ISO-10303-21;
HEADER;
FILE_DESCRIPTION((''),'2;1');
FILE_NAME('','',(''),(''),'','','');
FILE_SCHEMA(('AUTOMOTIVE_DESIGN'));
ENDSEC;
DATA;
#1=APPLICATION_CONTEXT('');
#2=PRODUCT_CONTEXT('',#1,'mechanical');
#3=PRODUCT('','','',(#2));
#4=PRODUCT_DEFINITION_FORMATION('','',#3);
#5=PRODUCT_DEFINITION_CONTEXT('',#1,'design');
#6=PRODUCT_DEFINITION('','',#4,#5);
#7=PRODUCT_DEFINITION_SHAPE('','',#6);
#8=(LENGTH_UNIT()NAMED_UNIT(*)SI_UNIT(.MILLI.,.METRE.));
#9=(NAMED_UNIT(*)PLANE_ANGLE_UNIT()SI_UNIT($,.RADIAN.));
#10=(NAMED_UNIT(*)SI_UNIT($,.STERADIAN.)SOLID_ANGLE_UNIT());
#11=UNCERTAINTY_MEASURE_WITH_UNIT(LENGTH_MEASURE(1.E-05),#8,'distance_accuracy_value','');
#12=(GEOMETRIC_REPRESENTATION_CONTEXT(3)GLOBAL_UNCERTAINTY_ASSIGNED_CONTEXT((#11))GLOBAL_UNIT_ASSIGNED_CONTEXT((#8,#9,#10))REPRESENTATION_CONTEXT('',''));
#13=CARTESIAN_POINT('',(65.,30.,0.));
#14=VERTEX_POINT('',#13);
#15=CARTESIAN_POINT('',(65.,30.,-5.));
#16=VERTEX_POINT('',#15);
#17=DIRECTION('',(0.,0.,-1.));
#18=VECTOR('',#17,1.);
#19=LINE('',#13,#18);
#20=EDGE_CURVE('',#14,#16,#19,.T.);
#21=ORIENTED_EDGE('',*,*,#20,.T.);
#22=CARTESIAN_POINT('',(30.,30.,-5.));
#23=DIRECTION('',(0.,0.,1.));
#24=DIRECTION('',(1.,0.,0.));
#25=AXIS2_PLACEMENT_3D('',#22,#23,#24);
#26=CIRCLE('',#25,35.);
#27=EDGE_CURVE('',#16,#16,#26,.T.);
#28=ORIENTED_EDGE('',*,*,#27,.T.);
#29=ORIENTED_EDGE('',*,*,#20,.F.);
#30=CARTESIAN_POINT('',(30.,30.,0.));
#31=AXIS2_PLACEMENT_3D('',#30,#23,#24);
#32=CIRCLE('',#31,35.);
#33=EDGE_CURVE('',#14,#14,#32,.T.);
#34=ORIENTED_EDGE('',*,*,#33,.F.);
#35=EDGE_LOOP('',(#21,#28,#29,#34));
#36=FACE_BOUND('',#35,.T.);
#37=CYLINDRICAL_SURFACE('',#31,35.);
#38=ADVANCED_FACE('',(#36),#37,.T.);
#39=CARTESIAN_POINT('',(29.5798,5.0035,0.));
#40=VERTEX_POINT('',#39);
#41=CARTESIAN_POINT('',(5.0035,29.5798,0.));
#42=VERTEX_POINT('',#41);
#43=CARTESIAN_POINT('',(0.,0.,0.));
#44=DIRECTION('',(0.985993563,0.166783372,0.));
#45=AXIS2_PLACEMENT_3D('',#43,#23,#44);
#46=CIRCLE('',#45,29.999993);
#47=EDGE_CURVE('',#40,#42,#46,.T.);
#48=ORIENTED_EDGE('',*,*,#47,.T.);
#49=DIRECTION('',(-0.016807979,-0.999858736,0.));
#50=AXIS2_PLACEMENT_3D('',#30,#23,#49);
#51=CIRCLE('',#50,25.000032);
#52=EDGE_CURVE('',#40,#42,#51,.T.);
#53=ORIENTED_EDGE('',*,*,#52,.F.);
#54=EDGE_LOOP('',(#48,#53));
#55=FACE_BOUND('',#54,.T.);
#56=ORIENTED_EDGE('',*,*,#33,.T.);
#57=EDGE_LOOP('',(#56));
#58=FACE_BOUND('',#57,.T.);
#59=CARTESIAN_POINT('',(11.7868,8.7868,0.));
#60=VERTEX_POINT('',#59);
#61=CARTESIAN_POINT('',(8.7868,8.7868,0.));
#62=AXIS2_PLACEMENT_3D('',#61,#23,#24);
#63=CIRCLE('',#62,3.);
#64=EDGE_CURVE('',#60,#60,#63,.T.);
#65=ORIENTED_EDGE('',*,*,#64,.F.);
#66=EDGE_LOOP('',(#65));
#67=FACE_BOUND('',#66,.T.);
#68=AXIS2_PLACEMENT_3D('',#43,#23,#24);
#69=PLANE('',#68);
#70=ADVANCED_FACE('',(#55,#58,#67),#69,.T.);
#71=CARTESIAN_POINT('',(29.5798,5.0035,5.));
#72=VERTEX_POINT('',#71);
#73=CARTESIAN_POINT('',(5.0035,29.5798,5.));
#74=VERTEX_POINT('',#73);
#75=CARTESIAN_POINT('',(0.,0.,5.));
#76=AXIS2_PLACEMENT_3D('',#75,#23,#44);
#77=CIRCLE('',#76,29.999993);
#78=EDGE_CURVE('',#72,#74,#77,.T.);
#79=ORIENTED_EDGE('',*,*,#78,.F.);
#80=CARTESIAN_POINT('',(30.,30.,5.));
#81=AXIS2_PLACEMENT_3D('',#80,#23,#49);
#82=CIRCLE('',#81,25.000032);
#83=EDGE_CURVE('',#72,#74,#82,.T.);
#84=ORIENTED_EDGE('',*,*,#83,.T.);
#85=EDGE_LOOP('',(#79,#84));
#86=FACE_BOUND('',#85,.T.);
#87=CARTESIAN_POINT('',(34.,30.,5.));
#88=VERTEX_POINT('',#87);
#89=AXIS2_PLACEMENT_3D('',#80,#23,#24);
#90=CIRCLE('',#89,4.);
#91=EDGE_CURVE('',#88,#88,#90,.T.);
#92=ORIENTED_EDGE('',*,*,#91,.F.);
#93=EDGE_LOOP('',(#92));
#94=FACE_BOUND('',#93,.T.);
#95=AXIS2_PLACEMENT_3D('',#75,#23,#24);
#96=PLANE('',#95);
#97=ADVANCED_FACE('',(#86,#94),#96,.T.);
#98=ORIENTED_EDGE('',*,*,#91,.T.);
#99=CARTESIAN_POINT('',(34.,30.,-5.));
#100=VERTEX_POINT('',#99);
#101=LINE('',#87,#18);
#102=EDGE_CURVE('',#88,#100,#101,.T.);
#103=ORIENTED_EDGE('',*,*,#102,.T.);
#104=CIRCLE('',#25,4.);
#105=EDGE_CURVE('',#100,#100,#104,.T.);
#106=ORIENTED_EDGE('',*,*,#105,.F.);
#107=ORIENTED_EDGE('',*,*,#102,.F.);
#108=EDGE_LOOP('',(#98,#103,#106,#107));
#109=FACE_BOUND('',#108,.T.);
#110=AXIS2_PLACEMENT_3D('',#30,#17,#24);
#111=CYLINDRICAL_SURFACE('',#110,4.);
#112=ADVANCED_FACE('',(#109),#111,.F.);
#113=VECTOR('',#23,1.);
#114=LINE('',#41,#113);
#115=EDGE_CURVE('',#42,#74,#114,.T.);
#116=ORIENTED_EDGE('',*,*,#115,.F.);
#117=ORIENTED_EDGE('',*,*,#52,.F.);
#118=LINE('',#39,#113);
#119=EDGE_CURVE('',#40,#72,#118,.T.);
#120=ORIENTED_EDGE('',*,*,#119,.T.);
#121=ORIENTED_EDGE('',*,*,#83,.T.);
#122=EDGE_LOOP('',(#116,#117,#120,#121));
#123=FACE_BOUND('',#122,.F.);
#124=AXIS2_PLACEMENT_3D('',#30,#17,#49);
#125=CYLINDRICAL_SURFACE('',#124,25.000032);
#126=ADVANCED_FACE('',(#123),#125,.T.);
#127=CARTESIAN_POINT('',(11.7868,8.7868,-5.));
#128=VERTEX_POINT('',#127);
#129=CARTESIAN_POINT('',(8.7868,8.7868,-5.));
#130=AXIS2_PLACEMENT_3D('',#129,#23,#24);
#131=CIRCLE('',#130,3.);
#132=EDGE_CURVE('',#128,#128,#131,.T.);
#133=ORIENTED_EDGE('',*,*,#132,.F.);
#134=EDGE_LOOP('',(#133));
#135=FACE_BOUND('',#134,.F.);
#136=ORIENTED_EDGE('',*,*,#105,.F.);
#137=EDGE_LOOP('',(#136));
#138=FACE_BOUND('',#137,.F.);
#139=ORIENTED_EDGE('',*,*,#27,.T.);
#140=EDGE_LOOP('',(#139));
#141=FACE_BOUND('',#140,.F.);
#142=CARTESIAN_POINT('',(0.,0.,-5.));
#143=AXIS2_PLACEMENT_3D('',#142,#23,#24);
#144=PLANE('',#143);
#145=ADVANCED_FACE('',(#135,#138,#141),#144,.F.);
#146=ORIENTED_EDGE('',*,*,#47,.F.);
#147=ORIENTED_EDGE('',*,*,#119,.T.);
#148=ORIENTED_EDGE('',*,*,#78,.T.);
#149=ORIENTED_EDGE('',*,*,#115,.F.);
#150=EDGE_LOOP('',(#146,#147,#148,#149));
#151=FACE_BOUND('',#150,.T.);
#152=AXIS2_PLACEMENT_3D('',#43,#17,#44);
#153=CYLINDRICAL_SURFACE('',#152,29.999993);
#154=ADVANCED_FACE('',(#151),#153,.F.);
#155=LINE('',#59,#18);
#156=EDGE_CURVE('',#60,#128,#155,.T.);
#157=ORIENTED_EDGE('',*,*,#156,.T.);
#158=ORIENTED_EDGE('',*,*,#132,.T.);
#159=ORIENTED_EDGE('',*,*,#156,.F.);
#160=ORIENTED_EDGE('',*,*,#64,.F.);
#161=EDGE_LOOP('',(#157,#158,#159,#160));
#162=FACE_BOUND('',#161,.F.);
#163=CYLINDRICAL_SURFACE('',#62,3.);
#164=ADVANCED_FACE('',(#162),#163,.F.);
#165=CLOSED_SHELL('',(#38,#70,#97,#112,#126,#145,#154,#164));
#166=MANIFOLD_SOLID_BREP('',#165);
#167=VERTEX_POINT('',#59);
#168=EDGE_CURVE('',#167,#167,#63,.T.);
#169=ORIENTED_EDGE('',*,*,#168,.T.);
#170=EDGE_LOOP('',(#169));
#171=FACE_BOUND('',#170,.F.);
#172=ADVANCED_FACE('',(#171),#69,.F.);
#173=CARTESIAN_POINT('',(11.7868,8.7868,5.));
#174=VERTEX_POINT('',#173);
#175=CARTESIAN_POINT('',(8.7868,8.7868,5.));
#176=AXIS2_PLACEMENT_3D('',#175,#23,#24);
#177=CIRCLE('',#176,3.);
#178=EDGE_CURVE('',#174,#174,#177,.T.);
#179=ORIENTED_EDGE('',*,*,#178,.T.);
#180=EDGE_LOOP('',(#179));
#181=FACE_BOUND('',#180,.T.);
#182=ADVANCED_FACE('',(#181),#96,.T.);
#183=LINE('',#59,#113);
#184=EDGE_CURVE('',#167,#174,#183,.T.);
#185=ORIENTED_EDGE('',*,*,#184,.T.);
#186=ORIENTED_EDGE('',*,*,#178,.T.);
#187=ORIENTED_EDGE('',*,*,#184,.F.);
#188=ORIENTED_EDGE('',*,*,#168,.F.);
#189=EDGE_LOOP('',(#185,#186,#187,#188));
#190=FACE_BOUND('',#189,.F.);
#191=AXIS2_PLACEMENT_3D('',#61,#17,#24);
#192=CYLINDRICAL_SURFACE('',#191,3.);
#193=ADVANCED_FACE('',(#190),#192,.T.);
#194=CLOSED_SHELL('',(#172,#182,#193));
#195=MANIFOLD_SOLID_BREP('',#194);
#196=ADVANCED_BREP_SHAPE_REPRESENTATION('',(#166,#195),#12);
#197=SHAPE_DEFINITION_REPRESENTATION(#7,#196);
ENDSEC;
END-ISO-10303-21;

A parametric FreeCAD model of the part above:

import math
import FreeCAD as App
import Part
import Sketcher

V = App.Vector
Q = App.Units.Quantity

doc = App.newDocument("Part")
params = doc.addObject("Spreadsheet::Sheet", "Params")
for row, (alias, value) in enumerate([
    ("sketch1_diameter", "8 mm"),
    ("sketch1_diameter2", "6 mm"),
    ("sketch1_radius", "30 mm"),
    ("sketch1_radius2", "25 mm"),
    ("pad1_length", "5 mm"),
    ("sketch2_diameter", "70 mm"),
    ("sketch2_diameter2", "6 mm"),
    ("sketch2_diameter3", "8 mm"),
    ("pad2_length", "5 mm"),
], start=1):
    params.set(f"A{row}", alias)
    params.set(f"B{row}", "=" + value)
    params.setAlias(f"B{row}", alias)

body = doc.addObject("PartDesign::Body", "Body")
body.AllowCompound = True

# Sketch on XY plane
sketch1 = body.newObject("Sketcher::SketchObject", "Sketch")
sketch1.AttachmentSupport = (doc.getObject("XY_Plane"), [""])
sketch1.MapMode = "FlatFace"
sketch1.addGeometry(Part.ArcOfCircle(Part.Circle(V(0, 0, 0), V(0, 0, 1), 30), math.radians(10), math.radians(80)), False)
sketch1.addGeometry(Part.ArcOfCircle(Part.Circle(V(30, 30, 0), V(0, 0, 1), 25), math.radians(-91), math.radians(181)), False)
sketch1.addGeometry(Part.Circle(V(30, 30, 0), V(0, 0, 1), 4), False)
sketch1.addGeometry(Part.Circle(V(8.8, 8.8, 0), V(0, 0, 1), 3), False)
sketch1.addConstraint(Sketcher.Constraint("Coincident", 0, 1, 1, 1))
sketch1.addConstraint(Sketcher.Constraint("Coincident", 1, 2, 0, 2))
sketch1.addConstraint(Sketcher.Constraint("Coincident", 0, 3, -1, 1))
sketch1.addConstraint(Sketcher.Constraint("Coincident", 2, 3, 1, 3))
sketch1.addConstraint(Sketcher.Constraint("Diameter", 2, Q("8 mm")))
sketch1.addConstraint(Sketcher.Constraint("Diameter", 3, Q("6 mm")))
sketch1.addConstraint(Sketcher.Constraint("Radius", 0, Q("30 mm")))
sketch1.addConstraint(Sketcher.Constraint("Radius", 1, Q("25 mm")))
sketch1.addConstraint(Sketcher.Constraint("DistanceX", -1, 1, 1, 3, Q("30 mm")))
sketch1.addConstraint(Sketcher.Constraint("DistanceY", -1, 1, 1, 3, Q("30 mm")))
sketch1.addConstraint(Sketcher.Constraint("DistanceX", 3, 3, 0, 1, Q("20.793 mm")))
sketch1.addConstraint(Sketcher.Constraint("DistanceY", 3, 3, 1, 2, Q("20.793 mm")))
sketch1.setExpression("Constraints[4]", "Params.sketch1_diameter")
sketch1.setExpression("Constraints[5]", "Params.sketch1_diameter2")
sketch1.setExpression("Constraints[6]", "Params.sketch1_radius")
sketch1.setExpression("Constraints[7]", "Params.sketch1_radius2")
pad1 = body.newObject("PartDesign::Pad", "Pad")
pad1.Profile = sketch1
pad1.setExpression("Length", "Params.pad1_length")

# Sketch on XY plane
sketch2 = body.newObject("Sketcher::SketchObject", "Sketch001")
sketch2.AttachmentSupport = (doc.getObject("XY_Plane"), [""])
sketch2.MapMode = "FlatFace"
sketch2.addGeometry(Part.Circle(V(30, 30, 0), V(0, 0, 1), 35), False)
sketch2.addGeometry(Part.Circle(V(8.8, 8.8, 0), V(0, 0, 1), 3), False)
sketch2.addGeometry(Part.Circle(V(30, 30, 0), V(0, 0, 1), 4), False)
sketch2.addConstraint(Sketcher.Constraint("Coincident", 2, 3, 0, 3))
sketch2.addConstraint(Sketcher.Constraint("Diameter", 0, Q("70 mm")))
sketch2.addConstraint(Sketcher.Constraint("Diameter", 1, Q("6 mm")))
sketch2.addConstraint(Sketcher.Constraint("Diameter", 2, Q("8 mm")))
sketch2.addConstraint(Sketcher.Constraint("DistanceX", -1, 1, 0, 3, Q("30 mm")))
sketch2.addConstraint(Sketcher.Constraint("DistanceY", -1, 1, 0, 3, Q("30 mm")))
sketch2.addConstraint(Sketcher.Constraint("DistanceX", -1, 1, 1, 3, Q("8.7868 mm")))
sketch2.addConstraint(Sketcher.Constraint("DistanceY", -1, 1, 1, 3, Q("8.7868 mm")))
sketch2.setExpression("Constraints[1]", "Params.sketch2_diameter")
sketch2.setExpression("Constraints[2]", "Params.sketch2_diameter2")
sketch2.setExpression("Constraints[3]", "Params.sketch2_diameter3")
pad2 = body.newObject("PartDesign::Pad", "Pad001")
pad2.Profile = sketch2
pad2.setExpression("Length", "Params.pad2_length")
pad2.Reversed = True

doc.recompute()
